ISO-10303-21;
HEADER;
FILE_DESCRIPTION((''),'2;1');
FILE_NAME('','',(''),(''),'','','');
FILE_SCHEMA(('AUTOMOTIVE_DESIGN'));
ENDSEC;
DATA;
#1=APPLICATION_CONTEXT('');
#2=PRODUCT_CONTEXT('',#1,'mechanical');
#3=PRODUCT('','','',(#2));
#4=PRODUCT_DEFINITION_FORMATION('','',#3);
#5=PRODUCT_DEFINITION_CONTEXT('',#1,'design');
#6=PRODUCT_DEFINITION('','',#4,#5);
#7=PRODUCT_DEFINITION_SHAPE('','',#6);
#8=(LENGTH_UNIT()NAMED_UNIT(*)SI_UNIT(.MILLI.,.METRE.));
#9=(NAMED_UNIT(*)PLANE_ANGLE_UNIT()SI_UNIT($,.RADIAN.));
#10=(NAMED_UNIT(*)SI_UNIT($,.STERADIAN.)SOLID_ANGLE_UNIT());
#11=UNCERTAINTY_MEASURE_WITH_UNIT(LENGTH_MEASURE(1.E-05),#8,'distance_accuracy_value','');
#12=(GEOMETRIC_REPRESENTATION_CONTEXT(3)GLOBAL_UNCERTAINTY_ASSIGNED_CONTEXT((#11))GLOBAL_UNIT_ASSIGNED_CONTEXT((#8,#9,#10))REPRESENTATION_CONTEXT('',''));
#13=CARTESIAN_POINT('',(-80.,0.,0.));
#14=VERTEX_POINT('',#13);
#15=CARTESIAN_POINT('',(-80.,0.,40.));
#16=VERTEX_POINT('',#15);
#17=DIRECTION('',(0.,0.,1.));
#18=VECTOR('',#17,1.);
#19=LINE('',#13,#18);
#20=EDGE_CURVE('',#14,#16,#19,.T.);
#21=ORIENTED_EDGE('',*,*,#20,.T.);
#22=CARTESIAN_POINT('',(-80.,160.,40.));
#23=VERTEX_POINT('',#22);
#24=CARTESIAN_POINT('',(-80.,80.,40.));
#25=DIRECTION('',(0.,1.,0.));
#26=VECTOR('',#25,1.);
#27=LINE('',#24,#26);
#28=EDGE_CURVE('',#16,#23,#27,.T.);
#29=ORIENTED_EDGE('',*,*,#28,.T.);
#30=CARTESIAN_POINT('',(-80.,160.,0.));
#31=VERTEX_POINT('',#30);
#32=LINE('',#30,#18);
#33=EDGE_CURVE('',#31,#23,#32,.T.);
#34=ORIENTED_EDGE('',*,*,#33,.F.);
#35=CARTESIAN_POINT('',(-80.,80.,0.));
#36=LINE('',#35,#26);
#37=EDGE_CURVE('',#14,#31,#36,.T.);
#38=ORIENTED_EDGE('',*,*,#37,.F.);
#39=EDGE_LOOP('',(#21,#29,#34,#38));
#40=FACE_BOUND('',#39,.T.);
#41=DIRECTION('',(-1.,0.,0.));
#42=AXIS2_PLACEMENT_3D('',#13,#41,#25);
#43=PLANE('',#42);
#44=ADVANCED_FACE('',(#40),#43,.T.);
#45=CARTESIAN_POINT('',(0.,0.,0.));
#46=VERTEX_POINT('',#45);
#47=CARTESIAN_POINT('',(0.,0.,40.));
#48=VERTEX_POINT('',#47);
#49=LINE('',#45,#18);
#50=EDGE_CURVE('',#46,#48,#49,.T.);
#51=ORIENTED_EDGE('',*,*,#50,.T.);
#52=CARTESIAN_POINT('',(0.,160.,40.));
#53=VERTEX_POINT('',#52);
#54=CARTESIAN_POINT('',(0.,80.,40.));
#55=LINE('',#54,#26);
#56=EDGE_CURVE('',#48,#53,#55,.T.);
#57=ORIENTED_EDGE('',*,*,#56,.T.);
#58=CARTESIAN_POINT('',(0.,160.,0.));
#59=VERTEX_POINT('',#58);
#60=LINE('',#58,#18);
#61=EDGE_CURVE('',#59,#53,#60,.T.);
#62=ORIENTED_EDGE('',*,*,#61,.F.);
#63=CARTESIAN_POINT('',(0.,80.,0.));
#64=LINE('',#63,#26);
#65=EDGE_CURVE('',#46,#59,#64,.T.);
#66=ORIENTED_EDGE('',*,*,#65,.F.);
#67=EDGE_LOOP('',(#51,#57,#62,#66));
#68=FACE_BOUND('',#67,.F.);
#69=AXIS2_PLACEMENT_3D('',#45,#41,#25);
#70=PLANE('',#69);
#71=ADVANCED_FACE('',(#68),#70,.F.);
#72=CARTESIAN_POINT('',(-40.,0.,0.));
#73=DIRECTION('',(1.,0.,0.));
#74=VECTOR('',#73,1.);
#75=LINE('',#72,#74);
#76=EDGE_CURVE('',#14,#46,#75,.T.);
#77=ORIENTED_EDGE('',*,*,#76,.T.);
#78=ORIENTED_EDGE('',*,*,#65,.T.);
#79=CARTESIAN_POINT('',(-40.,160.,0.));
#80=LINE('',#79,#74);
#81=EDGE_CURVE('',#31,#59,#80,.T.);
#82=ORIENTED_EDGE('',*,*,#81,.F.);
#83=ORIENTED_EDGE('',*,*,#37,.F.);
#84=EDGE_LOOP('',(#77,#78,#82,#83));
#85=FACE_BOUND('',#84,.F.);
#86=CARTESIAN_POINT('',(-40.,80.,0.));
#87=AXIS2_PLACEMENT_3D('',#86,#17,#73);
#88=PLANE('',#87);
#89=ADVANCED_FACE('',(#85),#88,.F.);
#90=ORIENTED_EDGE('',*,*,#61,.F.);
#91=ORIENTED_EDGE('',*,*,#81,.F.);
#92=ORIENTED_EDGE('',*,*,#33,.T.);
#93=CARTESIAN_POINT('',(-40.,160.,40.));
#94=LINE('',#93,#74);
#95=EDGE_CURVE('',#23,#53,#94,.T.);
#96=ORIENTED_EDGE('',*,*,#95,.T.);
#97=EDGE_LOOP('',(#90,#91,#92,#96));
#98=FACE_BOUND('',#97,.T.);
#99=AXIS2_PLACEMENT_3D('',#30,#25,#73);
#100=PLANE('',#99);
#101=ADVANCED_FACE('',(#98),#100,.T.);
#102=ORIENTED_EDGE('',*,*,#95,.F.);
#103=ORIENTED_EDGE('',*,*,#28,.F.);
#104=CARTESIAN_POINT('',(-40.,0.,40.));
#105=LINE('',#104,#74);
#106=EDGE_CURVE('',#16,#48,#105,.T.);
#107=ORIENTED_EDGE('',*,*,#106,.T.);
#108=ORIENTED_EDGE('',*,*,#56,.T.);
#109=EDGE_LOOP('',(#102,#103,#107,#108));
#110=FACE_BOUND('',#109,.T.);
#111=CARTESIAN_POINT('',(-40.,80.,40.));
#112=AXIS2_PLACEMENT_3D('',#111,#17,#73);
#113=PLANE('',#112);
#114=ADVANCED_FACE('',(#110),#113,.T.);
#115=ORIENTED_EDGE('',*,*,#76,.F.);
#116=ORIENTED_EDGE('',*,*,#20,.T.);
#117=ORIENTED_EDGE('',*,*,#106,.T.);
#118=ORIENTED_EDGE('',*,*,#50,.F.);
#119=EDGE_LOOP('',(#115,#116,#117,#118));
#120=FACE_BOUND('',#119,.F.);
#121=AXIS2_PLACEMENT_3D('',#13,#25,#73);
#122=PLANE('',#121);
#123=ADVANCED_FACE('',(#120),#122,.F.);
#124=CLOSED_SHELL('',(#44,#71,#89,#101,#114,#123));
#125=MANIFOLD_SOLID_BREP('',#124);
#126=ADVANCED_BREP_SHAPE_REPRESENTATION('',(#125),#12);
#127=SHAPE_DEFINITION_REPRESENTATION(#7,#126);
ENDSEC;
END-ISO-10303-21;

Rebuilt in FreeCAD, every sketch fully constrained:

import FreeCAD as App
import Part
import Sketcher

V = App.Vector
Q = App.Units.Quantity


def add_polygon(sketch, points):
    """Adds a closed chain of lines whose ends are joined by coincident constraints."""
    first, n = sketch.GeometryCount, len(points)
    for a, b in zip(points, points[1:] + points[:1]):
        sketch.addGeometry(Part.LineSegment(App.Vector(*a, 0), App.Vector(*b, 0)), False)
    for i in range(n):
        sketch.addConstraint(Sketcher.Constraint("Coincident", first + i, 2, first + (i + 1) % n, 1))

doc = App.newDocument("Part")
params = doc.addObject("Spreadsheet::Sheet", "Params")
for row, (alias, value) in enumerate([
    ("sketch1_width", "80 mm"),
    ("sketch1_height", "160 mm"),
    ("pad1_length", "40 mm"),
], start=1):
    params.set(f"A{row}", alias)
    params.set(f"B{row}", "=" + value)
    params.setAlias(f"B{row}", alias)

body = doc.addObject("PartDesign::Body", "Body")

# Sketch on XY plane
sketch1 = doc.addObject("Sketcher::SketchObject", "Sketch")
body.addObject(sketch1)
sketch1.AttachmentSupport = (doc.XY_Plane, [""])
sketch1.MapMode = "FlatFace"
add_polygon(sketch1, [(-80, 160), (-80, 0), (0, 0), (0, 160)])  # lines 0-3
sketch1.addConstraint([
    Sketcher.Constraint("Vertical", 0),
    Sketcher.Constraint("Horizontal", 1),
    Sketcher.Constraint("Vertical", 2),
    Sketcher.Constraint("Horizontal", 3),
    Sketcher.Constraint("Coincident", 1, 2, -1, 1),
    Sketcher.Constraint("DistanceX", 1, 1, 1, 2, Q("80 mm")),
    Sketcher.Constraint("DistanceY", 0, 2, 0, 1, Q("160 mm")),
])
sketch1.setExpression("Constraints[9]", "Params.sketch1_width")
sketch1.setExpression("Constraints[10]", "Params.sketch1_height")
pad1 = doc.addObject("PartDesign::Pad", "Pad")
body.addObject(pad1)
pad1.Profile = sketch1
pad1.setExpression("Length", "Params.pad1_length")

doc.recompute()
